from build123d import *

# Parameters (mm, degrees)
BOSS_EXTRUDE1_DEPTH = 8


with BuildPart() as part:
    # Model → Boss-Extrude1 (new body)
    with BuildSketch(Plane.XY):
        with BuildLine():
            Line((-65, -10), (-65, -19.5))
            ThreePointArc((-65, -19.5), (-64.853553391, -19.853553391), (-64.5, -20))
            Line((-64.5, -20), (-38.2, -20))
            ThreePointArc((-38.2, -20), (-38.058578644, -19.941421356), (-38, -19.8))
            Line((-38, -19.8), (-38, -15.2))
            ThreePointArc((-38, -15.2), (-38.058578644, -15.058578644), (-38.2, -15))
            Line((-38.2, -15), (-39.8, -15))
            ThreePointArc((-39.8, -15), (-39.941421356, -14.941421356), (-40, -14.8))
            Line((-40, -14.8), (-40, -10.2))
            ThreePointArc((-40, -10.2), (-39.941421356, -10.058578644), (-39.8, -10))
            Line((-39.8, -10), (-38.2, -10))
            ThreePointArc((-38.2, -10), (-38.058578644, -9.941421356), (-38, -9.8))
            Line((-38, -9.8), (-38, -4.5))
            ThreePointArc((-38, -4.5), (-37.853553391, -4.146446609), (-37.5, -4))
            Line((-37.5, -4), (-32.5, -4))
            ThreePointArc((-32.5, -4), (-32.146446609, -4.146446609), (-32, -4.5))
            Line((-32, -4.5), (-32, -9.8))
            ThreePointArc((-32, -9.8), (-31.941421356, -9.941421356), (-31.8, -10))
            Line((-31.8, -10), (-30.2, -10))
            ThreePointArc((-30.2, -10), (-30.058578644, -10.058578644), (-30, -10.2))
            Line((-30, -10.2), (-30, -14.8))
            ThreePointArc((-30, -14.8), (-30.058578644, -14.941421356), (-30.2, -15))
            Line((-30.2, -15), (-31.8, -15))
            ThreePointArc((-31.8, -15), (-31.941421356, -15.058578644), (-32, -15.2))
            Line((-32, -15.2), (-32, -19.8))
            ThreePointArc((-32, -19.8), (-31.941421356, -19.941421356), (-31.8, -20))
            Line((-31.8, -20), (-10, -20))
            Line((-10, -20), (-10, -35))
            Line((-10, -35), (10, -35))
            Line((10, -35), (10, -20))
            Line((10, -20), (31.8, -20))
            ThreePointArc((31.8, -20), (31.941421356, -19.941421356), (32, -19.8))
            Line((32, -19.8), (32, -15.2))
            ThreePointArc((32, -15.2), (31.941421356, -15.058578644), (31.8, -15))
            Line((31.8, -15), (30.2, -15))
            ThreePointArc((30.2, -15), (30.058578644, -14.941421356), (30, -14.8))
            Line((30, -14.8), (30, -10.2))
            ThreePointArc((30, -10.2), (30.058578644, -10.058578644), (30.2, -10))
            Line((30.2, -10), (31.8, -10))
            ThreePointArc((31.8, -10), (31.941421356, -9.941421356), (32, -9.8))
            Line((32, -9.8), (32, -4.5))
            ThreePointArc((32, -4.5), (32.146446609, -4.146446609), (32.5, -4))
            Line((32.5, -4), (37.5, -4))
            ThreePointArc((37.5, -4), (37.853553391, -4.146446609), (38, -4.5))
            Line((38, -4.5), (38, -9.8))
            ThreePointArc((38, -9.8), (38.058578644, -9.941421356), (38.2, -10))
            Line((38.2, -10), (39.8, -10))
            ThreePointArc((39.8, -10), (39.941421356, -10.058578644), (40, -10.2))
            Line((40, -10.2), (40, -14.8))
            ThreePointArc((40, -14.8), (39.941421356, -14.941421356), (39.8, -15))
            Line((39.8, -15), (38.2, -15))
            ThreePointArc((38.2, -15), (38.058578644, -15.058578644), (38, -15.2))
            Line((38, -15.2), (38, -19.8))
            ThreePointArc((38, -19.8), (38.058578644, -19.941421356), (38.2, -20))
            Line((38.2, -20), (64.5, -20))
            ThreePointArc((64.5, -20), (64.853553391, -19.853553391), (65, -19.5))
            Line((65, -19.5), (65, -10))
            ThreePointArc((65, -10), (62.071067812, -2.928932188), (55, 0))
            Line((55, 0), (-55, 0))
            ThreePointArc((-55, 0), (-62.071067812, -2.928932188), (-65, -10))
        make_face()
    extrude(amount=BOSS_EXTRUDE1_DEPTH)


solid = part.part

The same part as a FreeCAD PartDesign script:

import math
import FreeCAD as App
import Part
import Sketcher
from FreeCAD import Vector
Q = App.Units.Quantity

doc = App.newDocument("Part")
params = doc.addObject("Spreadsheet::Sheet", "Params")
for row, (alias, value) in enumerate([
    ("sketch1_radius", "10 mm"),
    ("sketch1_radius2", "0.5 mm"),
    ("sketch1_radius3", "0.2 mm"),
    ("sketch1_width", "5 mm"),
    ("sketch1_width2", "20 mm"),
    ("pad1_length", "8 mm"),
], start=1):
    params.set(f"A{row}", alias)
    params.set(f"B{row}", "=" + value)
    params.setAlias(f"B{row}", alias)

body = doc.addObject("PartDesign::Body", "Body")

sketch1 = body.newObject("Sketcher::SketchObject", "Sketch")
sketch1.AttachmentSupport = (doc.getObject("XY_Plane"), [""])
sketch1.MapMode = "FlatFace"
sketch1.addGeometry(Part.LineSegment(Vector(-65, -10, 0), Vector(-65, -19.5, 0)), False)
sketch1.addGeometry(Part.ArcOfCircle(Part.Circle(Vector(-64.5, -19.5, 0), Vector(0, 0, 1), 0.5), math.radians(180), math.radians(270)), False)
sketch1.addGeometry(Part.LineSegment(Vector(-64.5, -20, 0), Vector(-38.2, -20, 0)), False)
sketch1.addGeometry(Part.ArcOfCircle(Part.Circle(Vector(-38.2, -19.8, 0), Vector(0, 0, 1), 0.2), math.radians(-90), math.radians(0)), False)
sketch1.addGeometry(Part.LineSegment(Vector(-38, -19.8, 0), Vector(-38, -15.2, 0)), False)
sketch1.addGeometry(Part.ArcOfCircle(Part.Circle(Vector(-38.2, -15.2, 0), Vector(0, 0, 1), 0.2), math.radians(0), math.radians(90)), False)
sketch1.addGeometry(Part.LineSegment(Vector(-38.2, -15, 0), Vector(-39.8, -15, 0)), False)
sketch1.addGeometry(Part.ArcOfCircle(Part.Circle(Vector(-39.8, -14.8, 0), Vector(0, 0, 1), 0.2), math.radians(-180), math.radians(-90)), False)
sketch1.addGeometry(Part.LineSegment(Vector(-40, -14.8, 0), Vector(-40, -10.2, 0)), False)
sketch1.addGeometry(Part.ArcOfCircle(Part.Circle(Vector(-39.8, -10.2, 0), Vector(0, 0, 1), 0.2), math.radians(90), math.radians(180)), False)
sketch1.addGeometry(Part.LineSegment(Vector(-39.8, -10, 0), Vector(-38.2, -10, 0)), False)
sketch1.addGeometry(Part.ArcOfCircle(Part.Circle(Vector(-38.2, -9.8, 0), Vector(0, 0, 1), 0.2), math.radians(-90), math.radians(0)), False)
sketch1.addGeometry(Part.LineSegment(Vector(-38, -9.8, 0), Vector(-38, -4.5, 0)), False)
sketch1.addGeometry(Part.ArcOfCircle(Part.Circle(Vector(-37.5, -4.5, 0), Vector(0, 0, 1), 0.5), math.radians(90), math.radians(180)), False)
sketch1.addGeometry(Part.LineSegment(Vector(-37.5, -4, 0), Vector(-32.5, -4, 0)), False)
sketch1.addGeometry(Part.ArcOfCircle(Part.Circle(Vector(-32.5, -4.5, 0), Vector(0, 0, 1), 0.5), math.radians(0), math.radians(90)), False)
sketch1.addGeometry(Part.LineSegment(Vector(-32, -4.5, 0), Vector(-32, -9.8, 0)), False)
sketch1.addGeometry(Part.ArcOfCircle(Part.Circle(Vector(-31.8, -9.8, 0), Vector(0, 0, 1), 0.2), math.radians(-180), math.radians(-90)), False)
sketch1.addGeometry(Part.LineSegment(Vector(-31.8, -10, 0), Vector(-30.2, -10, 0)), False)
sketch1.addGeometry(Part.ArcOfCircle(Part.Circle(Vector(-30.2, -10.2, 0), Vector(0, 0, 1), 0.2), math.radians(0), math.radians(90)), False)
sketch1.addGeometry(Part.LineSegment(Vector(-30, -10.2, 0), Vector(-30, -14.8, 0)), False)
sketch1.addGeometry(Part.ArcOfCircle(Part.Circle(Vector(-30.2, -14.8, 0), Vector(0, 0, 1), 0.2), math.radians(-90), math.radians(0)), False)
sketch1.addGeometry(Part.LineSegment(Vector(-30.2, -15, 0), Vector(-31.8, -15, 0)), False)
sketch1.addGeometry(Part.ArcOfCircle(Part.Circle(Vector(-31.8, -15.2, 0), Vector(0, 0, 1), 0.2), math.radians(90), math.radians(180)), False)
sketch1.addGeometry(Part.LineSegment(Vector(-32, -15.2, 0), Vector(-32, -19.8, 0)), False)
sketch1.addGeometry(Part.ArcOfCircle(Part.Circle(Vector(-31.8, -19.8, 0), Vector(0, 0, 1), 0.2), math.radians(-180), math.radians(-90)), False)
sketch1.addGeometry(Part.LineSegment(Vector(-31.8, -20, 0), Vector(-10, -20, 0)), False)
sketch1.addGeometry(Part.LineSegment(Vector(-10, -20, 0), Vector(-10, -35, 0)), False)
sketch1.addGeometry(Part.LineSegment(Vector(-10, -35, 0), Vector(10, -35, 0)), False)
sketch1.addGeometry(Part.LineSegment(Vector(10, -35, 0), Vector(10, -20, 0)), False)
sketch1.addGeometry(Part.LineSegment(Vector(10, -20, 0), Vector(31.8, -20, 0)), False)
sketch1.addGeometry(Part.ArcOfCircle(Part.Circle(Vector(31.8, -19.8, 0), Vector(0, 0, 1), 0.2), math.radians(-90), math.radians(0)), False)
sketch1.addGeometry(Part.LineSegment(Vector(32, -19.8, 0), Vector(32, -15.2, 0)), False)
sketch1.addGeometry(Part.ArcOfCircle(Part.Circle(Vector(31.8, -15.2, 0), Vector(0, 0, 1), 0.2), math.radians(0), math.radians(90)), False)
sketch1.addGeometry(Part.LineSegment(Vector(31.8, -15, 0), Vector(30.2, -15, 0)), False)
sketch1.addGeometry(Part.ArcOfCircle(Part.Circle(Vector(30.2, -14.8, 0), Vector(0, 0, 1), 0.2), math.radians(-180), math.radians(-90)), False)
sketch1.addGeometry(Part.LineSegment(Vector(30, -14.8, 0), Vector(30, -10.2, 0)), False)
sketch1.addGeometry(Part.ArcOfCircle(Part.Circle(Vector(30.2, -10.2, 0), Vector(0, 0, 1), 0.2), math.radians(90), math.radians(180)), False)
sketch1.addGeometry(Part.LineSegment(Vector(30.2, -10, 0), Vector(31.8, -10, 0)), False)
sketch1.addGeometry(Part.ArcOfCircle(Part.Circle(Vector(31.8, -9.8, 0), Vector(0, 0, 1), 0.2), math.radians(-90), math.radians(0)), False)
sketch1.addGeometry(Part.LineSegment(Vector(32, -9.8, 0), Vector(32, -4.5, 0)), False)
sketch1.addGeometry(Part.ArcOfCircle(Part.Circle(Vector(32.5, -4.5, 0), Vector(0, 0, 1), 0.5), math.radians(90), math.radians(180)), False)
sketch1.addGeometry(Part.LineSegment(Vector(32.5, -4, 0), Vector(37.5, -4, 0)), False)
sketch1.addGeometry(Part.ArcOfCircle(Part.Circle(Vector(37.5, -4.5, 0), Vector(0, 0, 1), 0.5), math.radians(0), math.radians(90)), False)
sketch1.addGeometry(Part.LineSegment(Vector(38, -4.5, 0), Vector(38, -9.8, 0)), False)
sketch1.addGeometry(Part.ArcOfCircle(Part.Circle(Vector(38.2, -9.8, 0), Vector(0, 0, 1), 0.2), math.radians(-180), math.radians(-90)), False)
sketch1.addGeometry(Part.LineSegment(Vector(38.2, -10, 0), Vector(39.8, -10, 0)), False)
sketch1.addGeometry(Part.ArcOfCircle(Part.Circle(Vector(39.8, -10.2, 0), Vector(0, 0, 1), 0.2), math.radians(0), math.radians(90)), False)
sketch1.addGeometry(Part.LineSegment(Vector(40, -10.2, 0), Vector(40, -14.8, 0)), False)
sketch1.addGeometry(Part.ArcOfCircle(Part.Circle(Vector(39.8, -14.8, 0), Vector(0, 0, 1), 0.2), math.radians(-90), math.radians(0)), False)
sketch1.addGeometry(Part.LineSegment(Vector(39.8, -15, 0), Vector(38.2, -15, 0)), False)
sketch1.addGeometry(Part.ArcOfCircle(Part.Circle(Vector(38.2, -15.2, 0), Vector(0, 0, 1), 0.2), math.radians(90), math.radians(180)), False)
sketch1.addGeometry(Part.LineSegment(Vector(38, -15.2, 0), Vector(38, -19.8, 0)), False)
sketch1.addGeometry(Part.ArcOfCircle(Part.Circle(Vector(38.2, -19.8, 0), Vector(0, 0, 1), 0.2), math.radians(-180), math.radians(-90)), False)
sketch1.addGeometry(Part.LineSegment(Vector(38.2, -20, 0), Vector(64.5, -20, 0)), False)
sketch1.addGeometry(Part.ArcOfCircle(Part.Circle(Vector(64.5, -19.5, 0), Vector(0, 0, 1), 0.5), math.radians(-90), math.radians(0)), False)
sketch1.addGeometry(Part.LineSegment(Vector(65, -19.5, 0), Vector(65, -10, 0)), False)
sketch1.addGeometry(Part.ArcOfCircle(Part.Circle(Vector(55, -10, 0), Vector(0, 0, 1), 10), math.radians(0), math.radians(90)), False)
sketch1.addGeometry(Part.LineSegment(Vector(55, 0, 0), Vector(-55, 0, 0)), False)
sketch1.addGeometry(Part.ArcOfCircle(Part.Circle(Vector(-55, -10, 0), Vector(0, 0, 1), 10), math.radians(90), math.radians(180)), False)
sketch1.addConstraint(Sketcher.Constraint("Tangent", 0, 2, 1, 1))
sketch1.addConstraint(Sketcher.Constraint("Tangent", 1, 2, 2, 1))
sketch1.addConstraint(Sketcher.Constraint("Tangent", 2, 2, 3, 1))
sketch1.addConstraint(Sketcher.Constraint("Tangent", 3, 2, 4, 1))
sketch1.addConstraint(Sketcher.Constraint("Tangent", 4, 2, 5, 1))
sketch1.addConstraint(Sketcher.Constraint("Tangent", 5, 2, 6, 1))
sketch1.addConstraint(Sketcher.Constraint("Tangent", 6, 2, 7, 2))
sketch1.addConstraint(Sketcher.Constraint("Tangent", 7, 1, 8, 1))
sketch1.addConstraint(Sketcher.Constraint("Tangent", 8, 2, 9, 2))
sketch1.addConstraint(Sketcher.Constraint("Tangent", 9, 1, 10, 1))
sketch1.addConstraint(Sketcher.Constraint("Tangent", 10, 2, 11, 1))
sketch1.addConstraint(Sketcher.Constraint("Tangent", 11, 2, 12, 1))
sketch1.addConstraint(Sketcher.Constraint("Tangent", 12, 2, 13, 2))
sketch1.addConstraint(Sketcher.Constraint("Tangent", 13, 1, 14, 1))
sketch1.addConstraint(Sketcher.Constraint("Tangent", 14, 2, 15, 2))
sketch1.addConstraint(Sketcher.Constraint("Tangent", 15, 1, 16, 1))
sketch1.addConstraint(Sketcher.Constraint("Tangent", 16, 2, 17, 1))
sketch1.addConstraint(Sketcher.Constraint("Tangent", 17, 2, 18, 1))
sketch1.addConstraint(Sketcher.Constraint("Tangent", 18, 2, 19, 2))
sketch1.addConstraint(Sketcher.Constraint("Tangent", 19, 1, 20, 1))
sketch1.addConstraint(Sketcher.Constraint("Tangent", 20, 2, 21, 2))
sketch1.addConstraint(Sketcher.Constraint("Tangent", 21, 1, 22, 1))
sketch1.addConstraint(Sketcher.Constraint("Tangent", 22, 2, 23, 1))
sketch1.addConstraint(Sketcher.Constraint("Tangent", 23, 2, 24, 1))
sketch1.addConstraint(Sketcher.Constraint("Tangent", 24, 2, 25, 1))
sketch1.addConstraint(Sketcher.Constraint("Tangent", 25, 2, 26, 1))
sketch1.addConstraint(Sketcher.Constraint("Coincident", 26, 2, 27, 1))
sketch1.addConstraint(Sketcher.Constraint("Coincident", 27, 2, 28, 1))
sketch1.addConstraint(Sketcher.Constraint("Coincident", 28, 2, 29, 1))
sketch1.addConstraint(Sketcher.Constraint("Coincident", 29, 2, 30, 1))
sketch1.addConstraint(Sketcher.Constraint("Tangent", 30, 2, 31, 1))
sketch1.addConstraint(Sketcher.Constraint("Tangent", 31, 2, 32, 1))
sketch1.addConstraint(Sketcher.Constraint("Tangent", 32, 2, 33, 1))
sketch1.addConstraint(Sketcher.Constraint("Tangent", 33, 2, 34, 1))
sketch1.addConstraint(Sketcher.Constraint("Tangent", 34, 2, 35, 2))
sketch1.addConstraint(Sketcher.Constraint("Tangent", 35, 1, 36, 1))
sketch1.addConstraint(Sketcher.Constraint("Tangent", 36, 2, 37, 2))
sketch1.addConstraint(Sketcher.Constraint("Tangent", 37, 1, 38, 1))
sketch1.addConstraint(Sketcher.Constraint("Tangent", 38, 2, 39, 1))
sketch1.addConstraint(Sketcher.Constraint("Tangent", 39, 2, 40, 1))
sketch1.addConstraint(Sketcher.Constraint("Tangent", 40, 2, 41, 2))
sketch1.addConstraint(Sketcher.Constraint("Tangent", 41, 1, 42, 1))
sketch1.addConstraint(Sketcher.Constraint("Tangent", 42, 2, 43, 2))
sketch1.addConstraint(Sketcher.Constraint("Tangent", 43, 1, 44, 1))
sketch1.addConstraint(Sketcher.Constraint("Tangent", 44, 2, 45, 1))
sketch1.addConstraint(Sketcher.Constraint("Tangent", 45, 2, 46, 1))
sketch1.addConstraint(Sketcher.Constraint("Tangent", 46, 2, 47, 2))
sketch1.addConstraint(Sketcher.Constraint("Tangent", 47, 1, 48, 1))
sketch1.addConstraint(Sketcher.Constraint("Tangent", 48, 2, 49, 2))
sketch1.addConstraint(Sketcher.Constraint("Tangent", 49, 1, 50, 1))
sketch1.addConstraint(Sketcher.Constraint("Tangent", 50, 2, 51, 1))
sketch1.addConstraint(Sketcher.Constraint("Tangent", 51, 2, 52, 1))
sketch1.addConstraint(Sketcher.Constraint("Tangent", 52, 2, 53, 1))
sketch1.addConstraint(Sketcher.Constraint("Tangent", 53, 2, 54, 1))
sketch1.addConstraint(Sketcher.Constraint("Tangent", 54, 2, 55, 1))
sketch1.addConstraint(Sketcher.Constraint("Tangent", 55, 2, 56, 1))
sketch1.addConstraint(Sketcher.Constraint("Tangent", 56, 2, 57, 1))
sketch1.addConstraint(Sketcher.Constraint("Tangent", 57, 2, 58, 1))
sketch1.addConstraint(Sketcher.Constraint("Tangent", 58, 2, 59, 1))
sketch1.addConstraint(Sketcher.Constraint("Tangent", 59, 2, 0, 1))
sketch1.addConstraint(Sketcher.Constraint("Vertical", 0))
sketch1.addConstraint(Sketcher.Constraint("Horizontal", 2))
sketch1.addConstraint(Sketcher.Constraint("Vertical", 4))
sketch1.addConstraint(Sketcher.Constraint("Horizontal", 6))
sketch1.addConstraint(Sketcher.Constraint("Vertical", 8))
sketch1.addConstraint(Sketcher.Constraint("Horizontal", 10))
sketch1.addConstraint(Sketcher.Constraint("Vertical", 12))
sketch1.addConstraint(Sketcher.Constraint("Horizontal", 14))
sketch1.addConstraint(Sketcher.Constraint("Vertical", 16))
sketch1.addConstraint(Sketcher.Constraint("Horizontal", 18))
sketch1.addConstraint(Sketcher.Constraint("Vertical", 20))
sketch1.addConstraint(Sketcher.Constraint("Horizontal", 22))
sketch1.addConstraint(Sketcher.Constraint("Vertical", 24))
sketch1.addConstraint(Sketcher.Constraint("Horizontal", 26))
sketch1.addConstraint(Sketcher.Constraint("Vertical", 27))
sketch1.addConstraint(Sketcher.Constraint("Horizontal", 28))
sketch1.addConstraint(Sketcher.Constraint("Vertical", 29))
sketch1.addConstraint(Sketcher.Constraint("Horizontal", 30))
sketch1.addConstraint(Sketcher.Constraint("Vertical", 32))
sketch1.addConstraint(Sketcher.Constraint("Horizontal", 34))
sketch1.addConstraint(Sketcher.Constraint("Vertical", 36))
sketch1.addConstraint(Sketcher.Constraint("Horizontal", 38))
sketch1.addConstraint(Sketcher.Constraint("Vertical", 40))
sketch1.addConstraint(Sketcher.Constraint("Horizontal", 42))
sketch1.addConstraint(Sketcher.Constraint("Vertical", 44))
sketch1.addConstraint(Sketcher.Constraint("Horizontal", 46))
sketch1.addConstraint(Sketcher.Constraint("Vertical", 48))
sketch1.addConstraint(Sketcher.Constraint("Horizontal", 50))
sketch1.addConstraint(Sketcher.Constraint("Vertical", 52))
sketch1.addConstraint(Sketcher.Constraint("Horizontal", 54))
sketch1.addConstraint(Sketcher.Constraint("Vertical", 56))
sketch1.addConstraint(Sketcher.Constraint("Horizontal", 58))
sketch1.addConstraint(Sketcher.Constraint("Equal", 3, 5))
sketch1.addConstraint(Sketcher.Constraint("Equal", 5, 7))
sketch1.addConstraint(Sketcher.Constraint("Equal", 7, 9))
sketch1.addConstraint(Sketcher.Constraint("Equal", 9, 11))
sketch1.addConstraint(Sketcher.Constraint("Equal", 1, 13))
sketch1.addConstraint(Sketcher.Constraint("Equal", 13, 15))
sketch1.addConstraint(Sketcher.Constraint("Equal", 11, 17))
sketch1.addConstraint(Sketcher.Constraint("Equal", 17, 19))
sketch1.addConstraint(Sketcher.Constraint("Equal", 19, 21))
sketch1.addConstraint(Sketcher.Constraint("Equal", 21, 23))
sketch1.addConstraint(Sketcher.Constraint("Equal", 23, 25))
sketch1.addConstraint(Sketcher.Constraint("Equal", 25, 31))
sketch1.addConstraint(Sketcher.Constraint("Equal", 31, 33))
sketch1.addConstraint(Sketcher.Constraint("Equal", 33, 35))
sketch1.addConstraint(Sketcher.Constraint("Equal", 35, 37))
sketch1.addConstraint(Sketcher.Constraint("Equal", 37, 39))
sketch1.addConstraint(Sketcher.Constraint("Equal", 15, 41))
sketch1.addConstraint(Sketcher.Constraint("Equal", 41, 43))
sketch1.addConstraint(Sketcher.Constraint("Equal", 39, 45))
sketch1.addConstraint(Sketcher.Constraint("Equal", 45, 47))
sketch1.addConstraint(Sketcher.Constraint("Equal", 47, 49))
sketch1.addConstraint(Sketcher.Constraint("Equal", 49, 51))
sketch1.addConstraint(Sketcher.Constraint("Equal", 51, 53))
sketch1.addConstraint(Sketcher.Constraint("Equal", 43, 55))
sketch1.addConstraint(Sketcher.Constraint("Equal", 57, 59))
sketch1.addConstraint(Sketcher.Constraint("Symmetric", 57, 2, 58, 2, -1, 1))
sketch1.addConstraint(Sketcher.Constraint("Symmetric", 25, 3, 31, 3, -2))
sketch1.addConstraint(Sketcher.Constraint("Symmetric", 21, 3, 35, 3, -2))
sketch1.addConstraint(Sketcher.Constraint("Symmetric", 17, 3, 39, 3, -2))
sketch1.addConstraint(Sketcher.Constraint("Symmetric", 13, 3, 43, 3, -2))
sketch1.addConstraint(Sketcher.Constraint("Symmetric", 9, 3, 47, 3, -2))
sketch1.addConstraint(Sketcher.Constraint("Symmetric", 5, 3, 51, 3, -2))
sketch1.addConstraint(Sketcher.Constraint("Horizontal", 11, 3, 17, 3))
sketch1.addConstraint(Sketcher.Constraint("Horizontal", 7, 3, 21, 3))
sketch1.addConstraint(Sketcher.Constraint("Horizontal", 3, 3, 25, 3))
sketch1.addConstraint(Sketcher.Constraint("Horizontal", 31, 3, 53, 3))
sketch1.addConstraint(Sketcher.Constraint("Horizontal", 59, 3, 9, 1))
sketch1.addConstraint(Sketcher.Constraint("Vertical", 5, 3, 11, 3))
sketch1.addConstraint(Sketcher.Constraint("Vertical", 17, 3, 23, 3))
sketch1.addConstraint(Sketcher.Constraint("Equal", 10, 18))
sketch1.addConstraint(Sketcher.Constraint("Equal", 26, 30))
sketch1.addConstraint(Sketcher.Constraint("Equal", 4, 8))
sketch1.addConstraint(Sketcher.Constraint("Radius", 57, Q("10 mm")))
sketch1.addConstraint(Sketcher.Constraint("Radius", 1, Q("0.5 mm")))
sketch1.addConstraint(Sketcher.Constraint("Radius", 3, Q("0.2 mm")))
sketch1.addConstraint(Sketcher.Constraint("DistanceX", 14, 1, 14, 2, Q("5 mm")))
sketch1.addConstraint(Sketcher.Constraint("DistanceX", 28, 1, 28, 2, Q("20 mm")))
sketch1.addConstraint(Sketcher.Constraint("DistanceX", 58, 2, 58, 1, Q("110 mm")))
sketch1.addConstraint(Sketcher.Constraint("DistanceY", 27, 2, 27, 1, Q("15 mm")))
sketch1.addConstraint(Sketcher.Constraint("DistanceX", 2, 1, 2, 2, Q("26.3 mm")))
sketch1.addConstraint(Sketcher.Constraint("DistanceX", 6, 2, 6, 1, Q("1.6 mm")))
sketch1.addConstraint(Sketcher.Constraint("DistanceY", 0, 2, 0, 1, Q("9.5 mm")))
sketch1.addConstraint(Sketcher.Constraint("DistanceY", 12, 1, 12, 2, Q("5.3 mm")))
sketch1.setExpression("Constraints[134]", "Params.sketch1_radius")
sketch1.setExpression("Constraints[135]", "Params.sketch1_radius2")
sketch1.setExpression("Constraints[136]", "Params.sketch1_radius3")
sketch1.setExpression("Constraints[137]", "Params.sketch1_width")
sketch1.setExpression("Constraints[138]", "Params.sketch1_width2")
pad1 = body.newObject("PartDesign::Pad", "Pad")
pad1.Profile = sketch1
pad1.setExpression("Length", "Params.pad1_length")

doc.recompute()
